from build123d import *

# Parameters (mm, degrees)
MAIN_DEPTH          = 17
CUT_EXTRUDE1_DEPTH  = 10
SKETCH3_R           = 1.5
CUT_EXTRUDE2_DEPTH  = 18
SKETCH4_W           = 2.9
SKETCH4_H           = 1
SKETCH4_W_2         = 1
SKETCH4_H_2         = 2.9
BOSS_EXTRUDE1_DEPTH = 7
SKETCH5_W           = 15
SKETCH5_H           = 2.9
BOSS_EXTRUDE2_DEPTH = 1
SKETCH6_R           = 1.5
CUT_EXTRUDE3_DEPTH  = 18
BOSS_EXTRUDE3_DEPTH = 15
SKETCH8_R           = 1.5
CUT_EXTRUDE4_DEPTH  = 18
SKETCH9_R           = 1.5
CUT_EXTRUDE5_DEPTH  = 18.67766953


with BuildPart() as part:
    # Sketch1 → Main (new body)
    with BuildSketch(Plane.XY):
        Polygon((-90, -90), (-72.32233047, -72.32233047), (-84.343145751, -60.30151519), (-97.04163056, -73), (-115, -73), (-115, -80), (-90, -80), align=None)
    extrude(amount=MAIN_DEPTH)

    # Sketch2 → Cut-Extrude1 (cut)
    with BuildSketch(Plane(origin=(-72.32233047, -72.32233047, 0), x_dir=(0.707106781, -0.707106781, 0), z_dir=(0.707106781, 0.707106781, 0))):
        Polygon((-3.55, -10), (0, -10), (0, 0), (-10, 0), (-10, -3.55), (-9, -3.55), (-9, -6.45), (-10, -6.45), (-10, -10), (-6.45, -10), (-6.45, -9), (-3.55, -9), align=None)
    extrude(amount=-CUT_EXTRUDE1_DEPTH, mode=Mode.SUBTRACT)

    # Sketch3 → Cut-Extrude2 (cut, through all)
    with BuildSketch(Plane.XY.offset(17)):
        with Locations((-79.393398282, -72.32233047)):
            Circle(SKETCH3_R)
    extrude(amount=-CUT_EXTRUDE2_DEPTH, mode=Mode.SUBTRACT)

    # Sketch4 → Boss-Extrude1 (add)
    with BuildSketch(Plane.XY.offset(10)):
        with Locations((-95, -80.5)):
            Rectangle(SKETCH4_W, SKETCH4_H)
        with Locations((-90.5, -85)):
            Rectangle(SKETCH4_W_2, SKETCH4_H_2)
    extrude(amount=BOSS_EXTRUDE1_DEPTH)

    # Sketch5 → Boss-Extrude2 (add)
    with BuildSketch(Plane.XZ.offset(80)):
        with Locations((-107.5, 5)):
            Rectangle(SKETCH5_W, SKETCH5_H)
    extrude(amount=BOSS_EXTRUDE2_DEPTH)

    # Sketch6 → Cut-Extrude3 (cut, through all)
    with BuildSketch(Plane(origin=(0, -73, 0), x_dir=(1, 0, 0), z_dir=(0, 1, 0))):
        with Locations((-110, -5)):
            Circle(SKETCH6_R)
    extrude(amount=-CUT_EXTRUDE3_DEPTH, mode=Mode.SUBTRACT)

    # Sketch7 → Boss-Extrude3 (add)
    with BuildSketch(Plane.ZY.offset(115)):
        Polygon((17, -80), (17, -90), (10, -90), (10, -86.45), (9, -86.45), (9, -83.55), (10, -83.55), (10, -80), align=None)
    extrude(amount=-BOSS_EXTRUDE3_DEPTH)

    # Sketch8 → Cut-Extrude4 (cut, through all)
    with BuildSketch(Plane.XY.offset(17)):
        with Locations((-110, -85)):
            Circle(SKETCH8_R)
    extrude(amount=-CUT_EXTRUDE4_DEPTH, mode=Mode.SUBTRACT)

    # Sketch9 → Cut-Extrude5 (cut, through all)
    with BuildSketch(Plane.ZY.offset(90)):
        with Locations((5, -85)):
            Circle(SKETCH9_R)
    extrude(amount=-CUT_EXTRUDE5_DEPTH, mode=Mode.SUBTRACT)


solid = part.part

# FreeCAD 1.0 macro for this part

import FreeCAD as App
import Part
import Sketcher
from FreeCAD import Vector
Q = App.Units.Quantity

doc = App.newDocument("Part")
params = doc.addObject("Spreadsheet::Sheet", "Params")
for row, (alias, value) in enumerate([
    ("sketch1_width", "25 mm"),
    ("sketch1_height", "7 mm"),
    ("sketch1_height2", "10 mm"),
    ("sketch1_length", "25 mm"),
    ("sketch1_length2", "17 mm"),
    ("pad1_length", "17 mm"),
    ("sketch2_width", "10 mm"),
    ("sketch2_width2", "1 mm"),
    ("sketch2_width3", "2.9 mm"),
    ("pocket1_length", "10 mm"),
    ("sketch3_diameter", "3 mm"),
    ("sketch4_width", "1 mm"),
    ("sketch4_width2", "2.9 mm"),
    ("pad2_length", "7 mm"),
    ("sketch5_width", "15 mm"),
    ("sketch5_height", "2.9 mm"),
    ("pad3_length", "1 mm"),
    ("sketch6_diameter", "3 mm"),
    ("sketch7_width", "10 mm"),
    ("sketch7_height", "7 mm"),
    ("sketch7_height2", "1 mm"),
    ("sketch7_width2", "2.9 mm"),
    ("pad4_length", "15 mm"),
    ("sketch8_diameter", "3 mm"),
    ("sketch9_diameter", "3 mm"),
], start=1):
    params.set(f"A{row}", alias)
    params.set(f"B{row}", "=" + value)
    params.setAlias(f"B{row}", alias)

body = doc.addObject("PartDesign::Body", "Body")

sketch1 = doc.addObject("Sketcher::SketchObject", "Sketch")
body.addObject(sketch1)
sketch1.AttachmentSupport = (doc.XY_Plane, [""])
sketch1.MapMode = "FlatFace"
sketch1.addGeometry(Part.LineSegment(Vector(-90, -90, 0), Vector(-72, -72, 0)), False)
sketch1.addGeometry(Part.LineSegment(Vector(-72, -72, 0), Vector(-84, -60, 0)), False)
sketch1.addGeometry(Part.LineSegment(Vector(-84, -60, 0), Vector(-97, -73, 0)), False)
sketch1.addGeometry(Part.LineSegment(Vector(-97, -73, 0), Vector(-115, -73, 0)), False)
sketch1.addGeometry(Part.LineSegment(Vector(-115, -73, 0), Vector(-115, -80, 0)), False)
sketch1.addGeometry(Part.LineSegment(Vector(-115, -80, 0), Vector(-90, -80, 0)), False)
sketch1.addGeometry(Part.LineSegment(Vector(-90, -80, 0), Vector(-90, -90, 0)), False)
sketch1.addConstraint(Sketcher.Constraint("Coincident", 0, 2, 1, 1))
sketch1.addConstraint(Sketcher.Constraint("Coincident", 1, 2, 2, 1))
sketch1.addConstraint(Sketcher.Constraint("Coincident", 2, 2, 3, 1))
sketch1.addConstraint(Sketcher.Constraint("Coincident", 3, 2, 4, 1))
sketch1.addConstraint(Sketcher.Constraint("Coincident", 4, 2, 5, 1))
sketch1.addConstraint(Sketcher.Constraint("Coincident", 5, 2, 6, 1))
sketch1.addConstraint(Sketcher.Constraint("Coincident", 6, 2, 0, 1))
sketch1.addConstraint(Sketcher.Constraint("Horizontal", 3))
sketch1.addConstraint(Sketcher.Constraint("Vertical", 4))
sketch1.addConstraint(Sketcher.Constraint("Horizontal", 5))
sketch1.addConstraint(Sketcher.Constraint("Vertical", 6))
sketch1.addConstraint(Sketcher.Constraint("Perpendicular", 0, 1))
sketch1.addConstraint(Sketcher.Constraint("Perpendicular", 1, 2))
sketch1.addConstraint(Sketcher.Constraint("DistanceX", 5, 1, 5, 2, 25.0))
sketch1.addConstraint(Sketcher.Constraint("DistanceY", 4, 2, 4, 1, 7.0))
sketch1.addConstraint(Sketcher.Constraint("DistanceY", 6, 2, 6, 1, 10.0))
sketch1.addConstraint(Sketcher.Constraint("Angle", 0, Q("45 deg")))
sketch1.addConstraint(Sketcher.Constraint("Distance", 0, 25.0))
sketch1.addConstraint(Sketcher.Constraint("Distance", 1, 17.0))
sketch1.addConstraint(Sketcher.Constraint("DistanceY", 2, 2, -1, 1, 73.0))
sketch1.addConstraint(Sketcher.Constraint("DistanceX", 3, 2, -1, 1, 115.0))
sketch1.setExpression("Constraints[13]", "Params.sketch1_width")
sketch1.setExpression("Constraints[14]", "Params.sketch1_height")
sketch1.setExpression("Constraints[15]", "Params.sketch1_height2")
sketch1.setExpression("Constraints[17]", "Params.sketch1_length")
sketch1.setExpression("Constraints[18]", "Params.sketch1_length2")
pad1 = doc.addObject("PartDesign::Pad", "Pad")
body.addObject(pad1)
pad1.Profile = sketch1
pad1.setExpression("Length", "Params.pad1_length")

sketch2 = doc.addObject("Sketcher::SketchObject", "Sketch001")
body.addObject(sketch2)
sketch2.Placement = App.Placement(Vector(-72.32233, -72.32233, 0), App.Rotation(Vector(0.707106781, -0.707106781, 0), Vector(0, 0, -0.999999999), Vector(0.707106781, 0.707106781, 0), "ZXY"))
sketch2.addGeometry(Part.LineSegment(Vector(-3.5, -10, 0), Vector(0, -10, 0)), False)
sketch2.addGeometry(Part.LineSegment(Vector(0, -10, 0), Vector(0, 0, 0)), False)
sketch2.addGeometry(Part.LineSegment(Vector(0, 0, 0), Vector(-10, 0, 0)), False)
sketch2.addGeometry(Part.LineSegment(Vector(-10, 0, 0), Vector(-10, -3.5, 0)), False)
sketch2.addGeometry(Part.LineSegment(Vector(-10, -3.5, 0), Vector(-9, -3.5, 0)), False)
sketch2.addGeometry(Part.LineSegment(Vector(-9, -3.5, 0), Vector(-9, -6.4, 0)), False)
sketch2.addGeometry(Part.LineSegment(Vector(-9, -6.4, 0), Vector(-10, -6.4, 0)), False)
sketch2.addGeometry(Part.LineSegment(Vector(-10, -6.4, 0), Vector(-10, -10, 0)), False)
sketch2.addGeometry(Part.LineSegment(Vector(-10, -10, 0), Vector(-6.4, -10, 0)), False)
sketch2.addGeometry(Part.LineSegment(Vector(-6.4, -10, 0), Vector(-6.4, -9, 0)), False)
sketch2.addGeometry(Part.LineSegment(Vector(-6.4, -9, 0), Vector(-3.5, -9, 0)), False)
sketch2.addGeometry(Part.LineSegment(Vector(-3.5, -9, 0), Vector(-3.5, -10, 0)), False)
sketch2.addConstraint(Sketcher.Constraint("Coincident", 0, 2, 1, 1))
sketch2.addConstraint(Sketcher.Constraint("Coincident", 1, 2, 2, 1))
sketch2.addConstraint(Sketcher.Constraint("Coincident", 2, 2, 3, 1))
sketch2.addConstraint(Sketcher.Constraint("Coincident", 3, 2, 4, 1))
sketch2.addConstraint(Sketcher.Constraint("Coincident", 4, 2, 5, 1))
sketch2.addConstraint(Sketcher.Constraint("Coincident", 5, 2, 6, 1))
sketch2.addConstraint(Sketcher.Constraint("Coincident", 6, 2, 7, 1))
sketch2.addConstraint(Sketcher.Constraint("Coincident", 7, 2, 8, 1))
sketch2.addConstraint(Sketcher.Constraint("Coincident", 8, 2, 9, 1))
sketch2.addConstraint(Sketcher.Constraint("Coincident", 9, 2, 10, 1))
sketch2.addConstraint(Sketcher.Constraint("Coincident", 10, 2, 11, 1))
sketch2.addConstraint(Sketcher.Constraint("Coincident", 11, 2, 0, 1))
sketch2.addConstraint(Sketcher.Constraint("Horizontal", 0))
sketch2.addConstraint(Sketcher.Constraint("Vertical", 1))
sketch2.addConstraint(Sketcher.Constraint("Horizontal", 2))
sketch2.addConstraint(Sketcher.Constraint("Vertical", 3))
sketch2.addConstraint(Sketcher.Constraint("Horizontal", 4))
sketch2.addConstraint(Sketcher.Constraint("Vertical", 5))
sketch2.addConstraint(Sketcher.Constraint("Horizontal", 6))
sketch2.addConstraint(Sketcher.Constraint("Vertical", 7))
sketch2.addConstraint(Sketcher.Constraint("Horizontal", 8))
sketch2.addConstraint(Sketcher.Constraint("Vertical", 9))
sketch2.addConstraint(Sketcher.Constraint("Horizontal", 10))
sketch2.addConstraint(Sketcher.Constraint("Vertical", 11))
sketch2.addConstraint(Sketcher.Constraint("Coincident", 1, 2, -1, 1))
sketch2.addConstraint(Sketcher.Constraint("Horizontal", 0, 2, 7, 2))
sketch2.addConstraint(Sketcher.Constraint("Vertical", 3, 2, 6, 2))
sketch2.addConstraint(Sketcher.Constraint("Equal", 0, 8))
sketch2.addConstraint(Sketcher.Constraint("Equal", 2, 1))
sketch2.addConstraint(Sketcher.Constraint("Equal", 8, 3))
sketch2.addConstraint(Sketcher.Constraint("Equal", 10, 5))
sketch2.addConstraint(Sketcher.Constraint("Equal", 6, 9))
sketch2.addConstraint(Sketcher.Constraint("DistanceX", 2, 2, 2, 1, 10.0))
sketch2.addConstraint(Sketcher.Constraint("DistanceX", 4, 1, 4, 2, 1.0))
sketch2.addConstraint(Sketcher.Constraint("DistanceX", 10, 1, 10, 2, 2.9))
sketch2.setExpression("Constraints[32]", "Params.sketch2_width")
sketch2.setExpression("Constraints[33]", "Params.sketch2_width2")
sketch2.setExpression("Constraints[34]", "Params.sketch2_width3")
pocket1 = doc.addObject("PartDesign::Pocket", "Pocket")
body.addObject(pocket1)
pocket1.Profile = sketch2
pocket1.setExpression("Length", "Params.pocket1_length")

sketch3 = doc.addObject("Sketcher::SketchObject", "Sketch002")
body.addObject(sketch3)
sketch3.AttachmentSupport = (doc.XY_Plane, [""])
sketch3.MapMode = "FlatFace"
sketch3.AttachmentOffset = App.Placement(Vector(0, 0, 17), App.Rotation())
sketch3.addGeometry(Part.Circle(Vector(-79.4, -72.3, 0), Vector(0, 0, 1), 1.5), False)
sketch3.addConstraint(Sketcher.Constraint("Diameter", 0, 3.0))
sketch3.addConstraint(Sketcher.Constraint("DistanceX", 0, 3, -1, 1, 79.393398))
sketch3.addConstraint(Sketcher.Constraint("DistanceY", 0, 3, -1, 1, 72.32233))
sketch3.setExpression("Constraints[0]", "Params.sketch3_diameter")
pocket2 = doc.addObject("PartDesign::Pocket", "Pocket001")
body.addObject(pocket2)
pocket2.Profile = sketch3
pocket2.Type = "ThroughAll"

sketch4 = doc.addObject("Sketcher::SketchObject", "Sketch003")
body.addObject(sketch4)
sketch4.AttachmentSupport = (doc.XY_Plane, [""])
sketch4.MapMode = "FlatFace"
sketch4.AttachmentOffset = App.Placement(Vector(0, 0, 10), App.Rotation())
sketch4.addGeometry(Part.LineSegment(Vector(-96.5, -80, 0), Vector(-96.5, -81, 0)), False)
sketch4.addGeometry(Part.LineSegment(Vector(-96.5, -81, 0), Vector(-93.5, -81, 0)), False)
sketch4.addGeometry(Part.LineSegment(Vector(-93.5, -81, 0), Vector(-93.5, -80, 0)), False)
sketch4.addGeometry(Part.LineSegment(Vector(-93.5, -80, 0), Vector(-96.5, -80, 0)), False)
sketch4.addGeometry(Part.LineSegment(Vector(-91, -83.5, 0), Vector(-91, -86.5, 0)), False)
sketch4.addGeometry(Part.LineSegment(Vector(-91, -86.5, 0), Vector(-90, -86.5, 0)), False)
sketch4.addGeometry(Part.LineSegment(Vector(-90, -86.5, 0), Vector(-90, -83.5, 0)), False)
sketch4.addGeometry(Part.LineSegment(Vector(-90, -83.5, 0), Vector(-91, -83.5, 0)), False)
sketch4.addConstraint(Sketcher.Constraint("Coincident", 0, 2, 1, 1))
sketch4.addConstraint(Sketcher.Constraint("Coincident", 1, 2, 2, 1))
sketch4.addConstraint(Sketcher.Constraint("Coincident", 2, 2, 3, 1))
sketch4.addConstraint(Sketcher.Constraint("Coincident", 3, 2, 0, 1))
sketch4.addConstraint(Sketcher.Constraint("Coincident", 4, 2, 5, 1))
sketch4.addConstraint(Sketcher.Constraint("Coincident", 5, 2, 6, 1))
sketch4.addConstraint(Sketcher.Constraint("Coincident", 6, 2, 7, 1))
sketch4.addConstraint(Sketcher.Constraint("Coincident", 7, 2, 4, 1))
sketch4.addConstraint(Sketcher.Constraint("Vertical", 0))
sketch4.addConstraint(Sketcher.Constraint("Horizontal", 1))
sketch4.addConstraint(Sketcher.Constraint("Vertical", 2))
sketch4.addConstraint(Sketcher.Constraint("Horizontal", 3))
sketch4.addConstraint(Sketcher.Constraint("Vertical", 4))
sketch4.addConstraint(Sketcher.Constraint("Horizontal", 5))
sketch4.addConstraint(Sketcher.Constraint("Vertical", 6))
sketch4.addConstraint(Sketcher.Constraint("Horizontal", 7))
sketch4.addConstraint(Sketcher.Constraint("Equal", 7, 0))
sketch4.addConstraint(Sketcher.Constraint("Equal", 3, 4))
sketch4.addConstraint(Sketcher.Constraint("DistanceX", 5, 1, 5, 2, 1.0))
sketch4.addConstraint(Sketcher.Constraint("DistanceX", 1, 1, 1, 2, 2.9))
sketch4.addConstraint(Sketcher.Constraint("DistanceY", 0, 2, -1, 1, 81.0))
sketch4.addConstraint(Sketcher.Constraint("DistanceX", 4, 2, -1, 1, 91.0))
sketch4.addConstraint(Sketcher.Constraint("DistanceX", 0, 2, -1, 1, 96.45))
sketch4.addConstraint(Sketcher.Constraint("DistanceY", 4, 2, -1, 1, 86.45))
sketch4.setExpression("Constraints[18]", "Params.sketch4_width")
sketch4.setExpression("Constraints[19]", "Params.sketch4_width2")
pad2 = doc.addObject("PartDesign::Pad", "Pad001")
body.addObject(pad2)
pad2.Profile = sketch4
pad2.setExpression("Length", "Params.pad2_length")

sketch5 = doc.addObject("Sketcher::SketchObject", "Sketch004")
body.addObject(sketch5)
sketch5.AttachmentSupport = (doc.XZ_Plane, [""])
sketch5.MapMode = "FlatFace"
sketch5.AttachmentOffset = App.Placement(Vector(0, 0, 80), App.Rotation())
sketch5.addGeometry(Part.LineSegment(Vector(-115, 6.5, 0), Vector(-115, 3.5, 0)), False)
sketch5.addGeometry(Part.LineSegment(Vector(-115, 3.5, 0), Vector(-100, 3.5, 0)), False)
sketch5.addGeometry(Part.LineSegment(Vector(-100, 3.5, 0), Vector(-100, 6.5, 0)), False)
sketch5.addGeometry(Part.LineSegment(Vector(-100, 6.5, 0), Vector(-115, 6.5, 0)), False)
sketch5.addConstraint(Sketcher.Constraint("Coincident", 0, 2, 1, 1))
sketch5.addConstraint(Sketcher.Constraint("Coincident", 1, 2, 2, 1))
sketch5.addConstraint(Sketcher.Constraint("Coincident", 2, 2, 3, 1))
sketch5.addConstraint(Sketcher.Constraint("Coincident", 3, 2, 0, 1))
sketch5.addConstraint(Sketcher.Constraint("Vertical", 0))
sketch5.addConstraint(Sketcher.Constraint("Horizontal", 1))
sketch5.addConstraint(Sketcher.Constraint("Vertical", 2))
sketch5.addConstraint(Sketcher.Constraint("Horizontal", 3))
sketch5.addConstraint(Sketcher.Constraint("DistanceX", 1, 1, 1, 2, 15.0))
sketch5.addConstraint(Sketcher.Constraint("DistanceY", 0, 2, 0, 1, 2.9))
sketch5.addConstraint(Sketcher.Constraint("DistanceX", 0, 2, -1, 1, 115.0))
sketch5.addConstraint(Sketcher.Constraint("DistanceY", -1, 1, 0, 2, 3.55))
sketch5.setExpression("Constraints[8]", "Params.sketch5_width")
sketch5.setExpression("Constraints[9]", "Params.sketch5_height")
pad3 = doc.addObject("PartDesign::Pad", "Pad002")
body.addObject(pad3)
pad3.Profile = sketch5
pad3.setExpression("Length", "Params.pad3_length")

sketch6 = doc.addObject("Sketcher::SketchObject", "Sketch005")
body.addObject(sketch6)
sketch6.AttachmentSupport = (doc.XZ_Plane, [""])
sketch6.MapMode = "FlatFace"
sketch6.AttachmentOffset = App.Placement(Vector(0, 0, 73), App.Rotation())
sketch6.addGeometry(Part.Circle(Vector(-110, 5, 0), Vector(0, 0, 1), 1.5), False)
sketch6.addConstraint(Sketcher.Constraint("Diameter", 0, 3.0))
sketch6.addConstraint(Sketcher.Constraint("DistanceX", 0, 3, -1, 1, 110.0))
sketch6.addConstraint(Sketcher.Constraint("DistanceY", -1, 1, 0, 3, 5.0))
sketch6.setExpression("Constraints[0]", "Params.sketch6_diameter")
pocket3 = doc.addObject("PartDesign::Pocket", "Pocket002")
body.addObject(pocket3)
pocket3.Profile = sketch6
pocket3.Type = "ThroughAll"
pocket3.Reversed = True

sketch7 = doc.addObject("Sketcher::SketchObject", "Sketch006")
body.addObject(sketch7)
sketch7.AttachmentSupport = (doc.YZ_Plane, [""])
sketch7.MapMode = "FlatFace"
sketch7.AttachmentOffset = App.Placement(Vector(0, 0, -115), App.Rotation())
sketch7.addGeometry(Part.LineSegment(Vector(-90, 17, 0), Vector(-80, 17, 0)), False)
sketch7.addGeometry(Part.LineSegment(Vector(-80, 17, 0), Vector(-80, 10, 0)), False)
sketch7.addGeometry(Part.LineSegment(Vector(-80, 10, 0), Vector(-83.5, 10, 0)), False)
sketch7.addGeometry(Part.LineSegment(Vector(-83.5, 10, 0), Vector(-83.5, 9, 0)), False)
sketch7.addGeometry(Part.LineSegment(Vector(-83.5, 9, 0), Vector(-86.5, 9, 0)), False)
sketch7.addGeometry(Part.LineSegment(Vector(-86.5, 9, 0), Vector(-86.5, 10, 0)), False)
sketch7.addGeometry(Part.LineSegment(Vector(-86.5, 10, 0), Vector(-90, 10, 0)), False)
sketch7.addGeometry(Part.LineSegment(Vector(-90, 10, 0), Vector(-90, 17, 0)), False)
sketch7.addConstraint(Sketcher.Constraint("Coincident", 0, 2, 1, 1))
sketch7.addConstraint(Sketcher.Constraint("Coincident", 1, 2, 2, 1))
sketch7.addConstraint(Sketcher.Constraint("Coincident", 2, 2, 3, 1))
sketch7.addConstraint(Sketcher.Constraint("Coincident", 3, 2, 4, 1))
sketch7.addConstraint(Sketcher.Constraint("Coincident", 4, 2, 5, 1))
sketch7.addConstraint(Sketcher.Constraint("Coincident", 5, 2, 6, 1))
sketch7.addConstraint(Sketcher.Constraint("Coincident", 6, 2, 7, 1))
sketch7.addConstraint(Sketcher.Constraint("Coincident", 7, 2, 0, 1))
sketch7.addConstraint(Sketcher.Constraint("Horizontal", 0))
sketch7.addConstraint(Sketcher.Constraint("Vertical", 1))
sketch7.addConstraint(Sketcher.Constraint("Horizontal", 2))
sketch7.addConstraint(Sketcher.Constraint("Vertical", 3))
sketch7.addConstraint(Sketcher.Constraint("Horizontal", 4))
sketch7.addConstraint(Sketcher.Constraint("Vertical", 5))
sketch7.addConstraint(Sketcher.Constraint("Horizontal", 6))
sketch7.addConstraint(Sketcher.Constraint("Vertical", 7))
sketch7.addConstraint(Sketcher.Constraint("Horizontal", 2, 2, 5, 2))
sketch7.addConstraint(Sketcher.Constraint("Equal", 2, 6))
sketch7.addConstraint(Sketcher.Constraint("DistanceX", 0, 1, 0, 2, 10.0))
sketch7.addConstraint(Sketcher.Constraint("DistanceY", 1, 2, 1, 1, 7.0))
sketch7.addConstraint(Sketcher.Constraint("DistanceY", 3, 2, 3, 1, 1.0))
sketch7.addConstraint(Sketcher.Constraint("DistanceX", 4, 2, 4, 1, 2.9))
sketch7.addConstraint(Sketcher.Constraint("DistanceX", 0, 2, -1, 1, 80.0))
sketch7.addConstraint(Sketcher.Constraint("DistanceY", -1, 1, 0, 2, 17.0))
sketch7.setExpression("Constraints[18]", "Params.sketch7_width")
sketch7.setExpression("Constraints[19]", "Params.sketch7_height")
sketch7.setExpression("Constraints[20]", "Params.sketch7_height2")
sketch7.setExpression("Constraints[21]", "Params.sketch7_width2")
pad4 = doc.addObject("PartDesign::Pad", "Pad003")
body.addObject(pad4)
pad4.Profile = sketch7
pad4.setExpression("Length", "Params.pad4_length")

sketch8 = doc.addObject("Sketcher::SketchObject", "Sketch007")
body.addObject(sketch8)
sketch8.AttachmentSupport = (doc.XY_Plane, [""])
sketch8.MapMode = "FlatFace"
sketch8.AttachmentOffset = App.Placement(Vector(0, 0, 17), App.Rotation())
sketch8.addGeometry(Part.Circle(Vector(-110, -85, 0), Vector(0, 0, 1), 1.5), False)
sketch8.addConstraint(Sketcher.Constraint("Diameter", 0, 3.0))
sketch8.addConstraint(Sketcher.Constraint("DistanceX", 0, 3, -1, 1, 110.0))
sketch8.addConstraint(Sketcher.Constraint("DistanceY", 0, 3, -1, 1, 85.0))
sketch8.setExpression("Constraints[0]", "Params.sketch8_diameter")
pocket4 = doc.addObject("PartDesign::Pocket", "Pocket003")
body.addObject(pocket4)
pocket4.Profile = sketch8
pocket4.Type = "ThroughAll"

sketch9 = doc.addObject("Sketcher::SketchObject", "Sketch008")
body.addObject(sketch9)
sketch9.AttachmentSupport = (doc.YZ_Plane, [""])
sketch9.MapMode = "FlatFace"
sketch9.AttachmentOffset = App.Placement(Vector(0, 0, -90), App.Rotation())
sketch9.addGeometry(Part.Circle(Vector(-85, 5, 0), Vector(0, 0, 1), 1.5), False)
sketch9.addConstraint(Sketcher.Constraint("Diameter", 0, 3.0))
sketch9.addConstraint(Sketcher.Constraint("DistanceX", 0, 3, -1, 1, 85.0))
sketch9.addConstraint(Sketcher.Constraint("DistanceY", -1, 1, 0, 3, 5.0))
sketch9.setExpression("Constraints[0]", "Params.sketch9_diameter")
pocket5 = doc.addObject("PartDesign::Pocket", "Pocket004")
body.addObject(pocket5)
pocket5.Profile = sketch9
pocket5.Type = "ThroughAll"
pocket5.Reversed = True

doc.recompute()
